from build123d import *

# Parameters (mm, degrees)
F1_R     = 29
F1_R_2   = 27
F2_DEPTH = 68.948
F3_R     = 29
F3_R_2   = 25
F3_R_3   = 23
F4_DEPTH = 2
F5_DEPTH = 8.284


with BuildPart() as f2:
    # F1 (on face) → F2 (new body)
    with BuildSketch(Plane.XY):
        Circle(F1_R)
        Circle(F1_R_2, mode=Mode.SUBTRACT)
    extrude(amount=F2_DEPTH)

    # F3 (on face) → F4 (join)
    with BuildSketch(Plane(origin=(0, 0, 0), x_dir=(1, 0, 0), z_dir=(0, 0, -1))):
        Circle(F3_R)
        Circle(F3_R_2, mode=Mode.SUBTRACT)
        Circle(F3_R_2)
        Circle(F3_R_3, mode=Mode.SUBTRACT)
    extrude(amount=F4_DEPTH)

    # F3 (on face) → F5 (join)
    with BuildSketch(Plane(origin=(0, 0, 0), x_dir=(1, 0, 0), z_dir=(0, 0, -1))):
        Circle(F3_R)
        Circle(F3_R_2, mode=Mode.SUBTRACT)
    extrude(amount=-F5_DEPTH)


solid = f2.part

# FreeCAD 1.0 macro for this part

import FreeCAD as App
import Part
import Sketcher

doc = App.newDocument("Part")
body = doc.addObject("PartDesign::Body", "Body")

# Sketch on XY plane
sketch1 = doc.addObject("Sketcher::SketchObject", "Sketch")
body.addObject(sketch1)
sketch1.AttachmentSupport = (doc.XY_Plane, [""])
sketch1.MapMode = "FlatFace"
sketch1.addGeometry([
    Part.Circle(App.Vector(0, 0, 0), App.Vector(0, 0, 1), 29),
    Part.Circle(App.Vector(0, 0, 0), App.Vector(0, 0, 1), 27),
], False)
sketch1.addConstraint([
    Sketcher.Constraint("Coincident", 0, 3, -1, 1),
    Sketcher.Constraint("Coincident", 1, 3, -1, 1),
    Sketcher.Constraint("Diameter", 0, 58.0),
    Sketcher.Constraint("Diameter", 1, 54.0),
])
pad1 = doc.addObject("PartDesign::Pad", "Pad")
body.addObject(pad1)
pad1.Profile = sketch1
pad1.Length = 68.948

# Sketch on XY plane
sketch2 = doc.addObject("Sketcher::SketchObject", "Sketch001")
body.addObject(sketch2)
sketch2.AttachmentSupport = (doc.XY_Plane, [""])
sketch2.MapMode = "FlatFace"
sketch2.addGeometry([
    Part.Circle(App.Vector(0, 0, 0), App.Vector(0, 0, 1), 29),
    Part.Circle(App.Vector(0, 0, 0), App.Vector(0, 0, 1), 23),
], False)
sketch2.addConstraint([
    Sketcher.Constraint("Coincident", 0, 3, -1, 1),
    Sketcher.Constraint("Coincident", 1, 3, -1, 1),
    Sketcher.Constraint("Diameter", 0, 58.0),
    Sketcher.Constraint("Diameter", 1, 46.0),
])
pad2 = doc.addObject("PartDesign::Pad", "Pad001")
body.addObject(pad2)
pad2.Profile = sketch2
pad2.Length = 2
pad2.Reversed = True

# Sketch on XY plane
sketch3 = doc.addObject("Sketcher::SketchObject", "Sketch002")
body.addObject(sketch3)
sketch3.AttachmentSupport = (doc.XY_Plane, [""])
sketch3.MapMode = "FlatFace"
sketch3.addGeometry([
    Part.Circle(App.Vector(0, 0, 0), App.Vector(0, 0, 1), 29),
    Part.Circle(App.Vector(0, 0, 0), App.Vector(0, 0, 1), 25),
], False)
sketch3.addConstraint([
    Sketcher.Constraint("Coincident", 0, 3, -1, 1),
    Sketcher.Constraint("Coincident", 1, 3, -1, 1),
    Sketcher.Constraint("Diameter", 0, 58.0),
    Sketcher.Constraint("Diameter", 1, 50.0),
])
pad3 = doc.addObject("PartDesign::Pad", "Pad002")
body.addObject(pad3)
pad3.Profile = sketch3
pad3.Length = 8.284

doc.recompute()
